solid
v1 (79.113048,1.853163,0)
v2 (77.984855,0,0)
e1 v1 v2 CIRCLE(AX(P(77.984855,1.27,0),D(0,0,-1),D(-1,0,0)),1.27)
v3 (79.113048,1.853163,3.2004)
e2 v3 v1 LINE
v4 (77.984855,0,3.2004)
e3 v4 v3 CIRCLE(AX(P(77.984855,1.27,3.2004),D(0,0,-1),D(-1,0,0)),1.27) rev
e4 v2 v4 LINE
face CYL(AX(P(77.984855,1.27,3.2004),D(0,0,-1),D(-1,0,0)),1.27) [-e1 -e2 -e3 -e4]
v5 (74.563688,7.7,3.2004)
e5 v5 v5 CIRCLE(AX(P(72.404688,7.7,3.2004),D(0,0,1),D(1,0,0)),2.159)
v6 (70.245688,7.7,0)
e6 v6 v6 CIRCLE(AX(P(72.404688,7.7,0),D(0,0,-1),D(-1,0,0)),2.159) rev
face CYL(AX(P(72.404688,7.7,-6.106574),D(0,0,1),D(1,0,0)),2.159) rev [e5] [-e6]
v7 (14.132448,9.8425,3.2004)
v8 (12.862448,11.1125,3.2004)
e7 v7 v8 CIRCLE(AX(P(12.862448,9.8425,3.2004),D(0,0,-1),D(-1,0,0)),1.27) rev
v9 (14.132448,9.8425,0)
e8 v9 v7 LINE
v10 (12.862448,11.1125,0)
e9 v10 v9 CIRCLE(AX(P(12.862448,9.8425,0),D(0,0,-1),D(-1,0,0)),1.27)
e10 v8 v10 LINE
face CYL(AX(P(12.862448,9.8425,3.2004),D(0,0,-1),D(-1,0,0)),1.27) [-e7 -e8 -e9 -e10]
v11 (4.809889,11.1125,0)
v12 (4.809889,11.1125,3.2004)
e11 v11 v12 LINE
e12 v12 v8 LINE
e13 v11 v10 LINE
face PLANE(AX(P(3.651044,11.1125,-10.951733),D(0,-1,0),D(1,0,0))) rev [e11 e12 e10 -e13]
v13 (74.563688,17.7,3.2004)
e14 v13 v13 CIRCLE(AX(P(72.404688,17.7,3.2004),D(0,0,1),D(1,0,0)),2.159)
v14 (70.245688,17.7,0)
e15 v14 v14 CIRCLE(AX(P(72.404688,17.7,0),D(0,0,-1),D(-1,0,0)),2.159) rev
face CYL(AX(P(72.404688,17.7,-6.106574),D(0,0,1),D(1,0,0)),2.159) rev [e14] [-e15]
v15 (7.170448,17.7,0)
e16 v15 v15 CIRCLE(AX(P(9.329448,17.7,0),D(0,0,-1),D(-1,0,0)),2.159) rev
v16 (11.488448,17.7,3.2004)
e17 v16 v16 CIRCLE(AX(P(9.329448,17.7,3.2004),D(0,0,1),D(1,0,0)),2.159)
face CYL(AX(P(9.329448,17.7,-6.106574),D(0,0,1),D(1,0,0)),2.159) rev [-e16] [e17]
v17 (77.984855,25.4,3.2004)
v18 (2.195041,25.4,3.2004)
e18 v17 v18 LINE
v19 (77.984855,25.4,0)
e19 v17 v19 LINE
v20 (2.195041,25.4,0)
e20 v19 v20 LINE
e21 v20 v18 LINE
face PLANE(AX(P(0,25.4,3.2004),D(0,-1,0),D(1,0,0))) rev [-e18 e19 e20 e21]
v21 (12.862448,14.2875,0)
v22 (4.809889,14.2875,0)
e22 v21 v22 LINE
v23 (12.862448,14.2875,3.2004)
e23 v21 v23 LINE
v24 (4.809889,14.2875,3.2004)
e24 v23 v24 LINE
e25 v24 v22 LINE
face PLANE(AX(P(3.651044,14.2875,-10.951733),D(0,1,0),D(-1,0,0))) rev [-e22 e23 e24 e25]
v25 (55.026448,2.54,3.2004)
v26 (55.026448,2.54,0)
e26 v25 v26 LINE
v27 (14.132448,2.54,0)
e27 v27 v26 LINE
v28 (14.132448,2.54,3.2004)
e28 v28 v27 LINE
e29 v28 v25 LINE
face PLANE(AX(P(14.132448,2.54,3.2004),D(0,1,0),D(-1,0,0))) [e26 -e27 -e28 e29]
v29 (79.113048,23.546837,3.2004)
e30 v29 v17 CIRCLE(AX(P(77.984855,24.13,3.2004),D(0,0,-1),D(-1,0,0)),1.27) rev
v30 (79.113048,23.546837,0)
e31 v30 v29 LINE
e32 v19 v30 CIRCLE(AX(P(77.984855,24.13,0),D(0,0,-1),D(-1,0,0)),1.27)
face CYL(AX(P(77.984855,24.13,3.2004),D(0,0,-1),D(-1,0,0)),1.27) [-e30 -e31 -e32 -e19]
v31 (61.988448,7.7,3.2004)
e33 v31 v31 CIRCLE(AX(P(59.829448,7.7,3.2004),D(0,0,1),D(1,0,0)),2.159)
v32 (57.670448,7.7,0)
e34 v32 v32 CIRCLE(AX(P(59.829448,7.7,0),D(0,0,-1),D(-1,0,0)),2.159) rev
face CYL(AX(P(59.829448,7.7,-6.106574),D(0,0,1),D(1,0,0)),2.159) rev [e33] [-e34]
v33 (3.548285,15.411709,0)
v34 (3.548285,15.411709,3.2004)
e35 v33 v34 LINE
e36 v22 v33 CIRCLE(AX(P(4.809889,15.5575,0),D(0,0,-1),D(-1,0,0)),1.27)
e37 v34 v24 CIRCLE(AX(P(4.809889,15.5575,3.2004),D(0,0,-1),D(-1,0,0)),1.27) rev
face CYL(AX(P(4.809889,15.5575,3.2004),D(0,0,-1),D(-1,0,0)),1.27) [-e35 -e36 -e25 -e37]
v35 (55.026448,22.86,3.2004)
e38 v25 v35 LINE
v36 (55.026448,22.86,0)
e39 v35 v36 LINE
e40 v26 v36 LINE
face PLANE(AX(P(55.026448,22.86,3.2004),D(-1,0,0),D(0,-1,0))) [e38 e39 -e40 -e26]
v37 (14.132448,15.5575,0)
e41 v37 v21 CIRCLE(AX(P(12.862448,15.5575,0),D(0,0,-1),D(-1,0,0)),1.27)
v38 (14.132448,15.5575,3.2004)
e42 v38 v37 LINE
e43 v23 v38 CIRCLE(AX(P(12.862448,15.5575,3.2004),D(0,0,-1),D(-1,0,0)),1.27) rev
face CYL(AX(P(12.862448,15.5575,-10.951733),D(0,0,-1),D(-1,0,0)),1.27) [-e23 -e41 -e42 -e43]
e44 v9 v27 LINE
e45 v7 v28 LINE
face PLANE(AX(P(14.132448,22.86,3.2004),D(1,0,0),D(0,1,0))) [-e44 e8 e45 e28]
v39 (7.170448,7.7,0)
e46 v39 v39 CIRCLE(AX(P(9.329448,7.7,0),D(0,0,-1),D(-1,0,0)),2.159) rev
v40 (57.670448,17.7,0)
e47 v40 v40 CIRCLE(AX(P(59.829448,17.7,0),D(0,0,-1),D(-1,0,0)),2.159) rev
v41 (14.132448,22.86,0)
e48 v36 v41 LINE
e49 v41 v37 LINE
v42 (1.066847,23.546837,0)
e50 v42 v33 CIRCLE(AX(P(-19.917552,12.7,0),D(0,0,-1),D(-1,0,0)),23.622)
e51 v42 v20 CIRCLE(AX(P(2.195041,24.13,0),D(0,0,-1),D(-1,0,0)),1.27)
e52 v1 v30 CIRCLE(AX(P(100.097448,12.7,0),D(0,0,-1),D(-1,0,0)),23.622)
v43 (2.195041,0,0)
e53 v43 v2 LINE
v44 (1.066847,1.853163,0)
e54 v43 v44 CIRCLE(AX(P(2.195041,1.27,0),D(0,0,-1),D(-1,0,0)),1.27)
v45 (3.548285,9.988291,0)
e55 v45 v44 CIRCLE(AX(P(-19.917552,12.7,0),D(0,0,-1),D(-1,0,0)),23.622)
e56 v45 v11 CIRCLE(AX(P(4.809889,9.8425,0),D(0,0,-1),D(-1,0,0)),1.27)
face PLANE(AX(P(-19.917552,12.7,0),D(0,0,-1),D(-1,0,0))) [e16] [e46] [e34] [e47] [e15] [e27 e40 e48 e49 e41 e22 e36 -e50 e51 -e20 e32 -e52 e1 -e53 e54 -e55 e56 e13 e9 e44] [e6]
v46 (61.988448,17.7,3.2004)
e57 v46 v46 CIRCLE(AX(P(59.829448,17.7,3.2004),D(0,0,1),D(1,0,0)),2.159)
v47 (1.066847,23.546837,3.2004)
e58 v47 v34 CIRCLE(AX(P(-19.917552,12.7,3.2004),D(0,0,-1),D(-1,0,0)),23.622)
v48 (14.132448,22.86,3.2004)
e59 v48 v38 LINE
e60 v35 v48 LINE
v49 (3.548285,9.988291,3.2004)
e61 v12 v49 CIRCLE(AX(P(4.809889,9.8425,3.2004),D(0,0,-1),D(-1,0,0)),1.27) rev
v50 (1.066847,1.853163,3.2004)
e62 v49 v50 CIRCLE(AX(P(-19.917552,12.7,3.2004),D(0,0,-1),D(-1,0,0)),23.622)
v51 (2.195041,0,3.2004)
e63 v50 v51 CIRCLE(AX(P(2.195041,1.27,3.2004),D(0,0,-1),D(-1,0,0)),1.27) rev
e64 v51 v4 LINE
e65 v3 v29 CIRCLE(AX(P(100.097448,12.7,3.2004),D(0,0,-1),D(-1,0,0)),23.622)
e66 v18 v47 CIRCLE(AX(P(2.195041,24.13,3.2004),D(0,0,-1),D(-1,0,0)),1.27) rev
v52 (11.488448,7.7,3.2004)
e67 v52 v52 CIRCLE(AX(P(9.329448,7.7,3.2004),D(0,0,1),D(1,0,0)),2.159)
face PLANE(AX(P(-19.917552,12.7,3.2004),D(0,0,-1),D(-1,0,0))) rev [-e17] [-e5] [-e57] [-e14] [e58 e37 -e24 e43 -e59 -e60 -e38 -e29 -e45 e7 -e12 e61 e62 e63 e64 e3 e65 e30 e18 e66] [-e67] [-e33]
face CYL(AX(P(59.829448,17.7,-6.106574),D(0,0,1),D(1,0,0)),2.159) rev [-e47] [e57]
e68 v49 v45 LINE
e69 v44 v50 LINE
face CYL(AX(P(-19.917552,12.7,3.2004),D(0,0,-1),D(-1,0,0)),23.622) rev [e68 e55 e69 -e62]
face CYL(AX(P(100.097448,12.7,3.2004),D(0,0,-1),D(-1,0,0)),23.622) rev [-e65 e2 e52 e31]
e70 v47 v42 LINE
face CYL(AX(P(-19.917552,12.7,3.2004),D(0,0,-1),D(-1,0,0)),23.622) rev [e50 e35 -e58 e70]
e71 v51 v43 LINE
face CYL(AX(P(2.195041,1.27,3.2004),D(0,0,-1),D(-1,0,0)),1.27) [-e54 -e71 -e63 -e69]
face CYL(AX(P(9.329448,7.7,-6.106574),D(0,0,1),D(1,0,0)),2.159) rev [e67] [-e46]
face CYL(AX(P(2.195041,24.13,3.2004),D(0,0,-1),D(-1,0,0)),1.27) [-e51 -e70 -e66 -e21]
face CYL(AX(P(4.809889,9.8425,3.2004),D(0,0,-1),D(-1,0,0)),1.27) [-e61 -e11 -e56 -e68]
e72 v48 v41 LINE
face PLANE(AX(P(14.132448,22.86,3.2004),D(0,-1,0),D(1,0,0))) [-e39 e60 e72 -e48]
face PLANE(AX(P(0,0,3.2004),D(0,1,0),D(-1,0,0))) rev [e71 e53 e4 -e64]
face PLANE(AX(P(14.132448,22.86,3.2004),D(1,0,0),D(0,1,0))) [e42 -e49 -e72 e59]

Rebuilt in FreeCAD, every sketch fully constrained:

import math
import FreeCAD as App
import Part
import Sketcher
from FreeCAD import Vector
Q = App.Units.Quantity


def edges_at(feature, points):
    """Names of the edges that pass closest to the given points."""
    edges = feature.Shape.Edges
    near = lambda p: min(range(len(edges)), key=lambda i: edges[i].distToShape(Part.Vertex(*p))[0])
    return sorted({f"Edge{near(p) + 1}" for p in points})


def add_polygon(sketch, points):
    """Adds a closed chain of lines whose ends are joined by coincident constraints."""
    first, n = sketch.GeometryCount, len(points)
    for a, b in zip(points, points[1:] + points[:1]):
        sketch.addGeometry(Part.LineSegment(App.Vector(*a, 0), App.Vector(*b, 0)), False)
    for i in range(n):
        sketch.addConstraint(Sketcher.Constraint("Coincident", first + i, 2, first + (i + 1) % n, 1))

doc = App.newDocument("Part")
body = doc.addObject("PartDesign::Body", "Body")

# Sketch on XY plane
sketch1 = body.newObject("Sketcher::SketchObject", "Sketch")
sketch1.AttachmentSupport = (doc.getObject("XY_Plane"), [""])
sketch1.MapMode = "FlatFace"
sketch1.addGeometry(Part.LineSegment(Vector(80, 25, 0), Vector(0, 25, 0)), False)  # 0
sketch1.addGeometry(Part.ArcOfCircle(Part.Circle(Vector(-20, 13, 0), Vector(0, 0, 1), 24), math.radians(-33), math.radians(33)), False)  # 1
sketch1.addGeometry(Part.LineSegment(Vector(0, 0, 0), Vector(80, 0, 0)), False)  # 2
sketch1.addGeometry(Part.ArcOfCircle(Part.Circle(Vector(100, 13, 0), Vector(0, 0, 1), 24), math.radians(147), math.radians(213)), False)  # 3
add_polygon(sketch1, [(14, 3), (14, 23), (55, 23), (55, 3)])  # lines 4-7
sketch1.addConstraint([
    Sketcher.Constraint("Coincident", 0, 2, 1, 2),
    Sketcher.Constraint("Coincident", 1, 1, 2, 1),
    Sketcher.Constraint("Coincident", 2, 2, 3, 2),
    Sketcher.Constraint("Coincident", 3, 1, 0, 1),
    Sketcher.Constraint("Horizontal", 0),
    Sketcher.Constraint("Horizontal", 2),
    Sketcher.Constraint("Vertical", 4),
    Sketcher.Constraint("Horizontal", 5),
    Sketcher.Constraint("Vertical", 6),
    Sketcher.Constraint("Horizontal", 7),
    Sketcher.Constraint("Coincident", 1, 1, -1, 1),
    Sketcher.Constraint("Equal", 1, 3),
    Sketcher.Constraint("PointOnObject", 0, 2, -2),
    Sketcher.Constraint("Horizontal", 1, 3, 3, 3),
    Sketcher.Constraint("Radius", 1, Q("0.93 in")),
    Sketcher.Constraint("DistanceY", 4, 1, 4, 2, Q("0.8 in")),
    Sketcher.Constraint("DistanceY", -1, 1, 0, 2, Q("1 in")),
    Sketcher.Constraint("DistanceX", 5, 1, 5, 2, Q("1.61 in")),
    Sketcher.Constraint("DistanceY", -1, 1, 4, 2, Q("0.9 in")),
    Sketcher.Constraint("DistanceX", 1, 3, 3, 3, Q("4.725 in")),
    Sketcher.Constraint("DistanceX", 1, 3, 4, 2, Q("34.05 mm")),
])
pad1 = body.newObject("PartDesign::Pad", "Pad")
pad1.Profile = sketch1
pad1.Length = Q("0.126 in")

# Sketch on XY plane
sketch2 = body.newObject("Sketcher::SketchObject", "Sketch001")
sketch2.AttachmentSupport = (doc.getObject("XY_Plane"), [""])
sketch2.MapMode = "FlatFace"
sketch2.AttachmentOffset = App.Placement(Vector(0, 0, 0.126 * 25.4), App.Rotation())
sketch2.addGeometry([
    Part.Circle(Vector(9.3, 17.7, 0), Vector(0, 0, 1), 2.2),  # 0
    Part.Circle(Vector(59.8, 7.7, 0), Vector(0, 0, 1), 2.2),  # 1
    Part.Circle(Vector(59.8, 17.7, 0), Vector(0, 0, 1), 2.2),  # 2
    Part.Circle(Vector(9.3, 7.7, 0), Vector(0, 0, 1), 2.2),  # 3
    Part.Circle(Vector(72.4, 17.7, 0), Vector(0, 0, 1), 2.2),  # 4
    Part.Circle(Vector(72.4, 7.7, 0), Vector(0, 0, 1), 2.2),  # 5
], False)
sketch2.addConstraint([
    Sketcher.Constraint("Equal", 0, 1),
    Sketcher.Constraint("Equal", 1, 2),
    Sketcher.Constraint("Equal", 2, 3),
    Sketcher.Constraint("Equal", 3, 4),
    Sketcher.Constraint("Equal", 4, 5),
    Sketcher.Constraint("Horizontal", 0, 3, 2, 3),
    Sketcher.Constraint("Horizontal", 1, 3, 3, 3),
    Sketcher.Constraint("Horizontal", 2, 3, 4, 3),
    Sketcher.Constraint("Horizontal", 3, 3, 5, 3),
    Sketcher.Constraint("Vertical", 1, 3, 2, 3),
    Sketcher.Constraint("Vertical", 0, 3, 3, 3),
    Sketcher.Constraint("Vertical", 4, 3, 5, 3),
    Sketcher.Constraint("Diameter", 0, Q("0.17 in")),
    Sketcher.Constraint("DistanceY", -1, 1, 0, 3, Q("17.7 mm")),
    Sketcher.Constraint("DistanceY", -1, 1, 1, 3, Q("7.7 mm")),
    Sketcher.Constraint("DistanceX", 0, 3, 1, 3, Q("50.5 mm")),
    Sketcher.Constraint("DistanceX", -1, 1, 4, 3, Q("72.404688 mm")),
    Sketcher.Constraint("DistanceX", 2, 3, 4, 3, Q("12.57524 mm")),
])
pocket1 = body.newObject("PartDesign::Pocket", "Pocket")
pocket1.Profile = sketch2
pocket1.Length = Q("0.126 in")

# Sketch on XY plane
sketch3 = body.newObject("Sketcher::SketchObject", "Sketch002")
sketch3.AttachmentSupport = (doc.getObject("XY_Plane"), [""])
sketch3.MapMode = "FlatFace"
sketch3.AttachmentOffset = App.Placement(Vector(0, 0, 0.126 * 25.4), App.Rotation())
add_polygon(sketch3, [(3.7, 14.3), (3.7, 11.1), (14.1, 11.1), (14.1, 14.3)])  # lines 0-3
sketch3.addConstraint([
    Sketcher.Constraint("Vertical", 0),
    Sketcher.Constraint("Horizontal", 1),
    Sketcher.Constraint("Vertical", 2),
    Sketcher.Constraint("Horizontal", 3),
    Sketcher.Constraint("DistanceY", 0, 2, 0, 1, Q("0.125 in")),
    Sketcher.Constraint("DistanceY", -1, 1, 0, 2, Q("0.4375 in")),
    Sketcher.Constraint("DistanceX", 1, 1, 1, 2, Q("10.481404 mm")),
    Sketcher.Constraint("DistanceX", -1, 1, 0, 2, Q("3.651044 mm")),
])
pocket2 = body.newObject("PartDesign::Pocket", "Pocket001")
pocket2.Profile = sketch3
pocket2.Length = Q("0.126 in")
doc.recompute()

fillet = body.newObject("PartDesign::Fillet", "Fillet")
fillet.Base = (pocket2, edges_at(pocket2, [
    (14.132, 11.113, 1.6),
    (14.132, 14.287, 1.6),
    (3.651, 14.287, 1.6),
    (3.651, 11.113, 1.6),
    (0, 25.4, 1.6),
    (80.18, 25.4, 1.6),
    (80.18, 0, 1.6),
    (0, 0, 1.6),
]))
fillet.Radius = Q("0.05 in")

doc.recompute()
